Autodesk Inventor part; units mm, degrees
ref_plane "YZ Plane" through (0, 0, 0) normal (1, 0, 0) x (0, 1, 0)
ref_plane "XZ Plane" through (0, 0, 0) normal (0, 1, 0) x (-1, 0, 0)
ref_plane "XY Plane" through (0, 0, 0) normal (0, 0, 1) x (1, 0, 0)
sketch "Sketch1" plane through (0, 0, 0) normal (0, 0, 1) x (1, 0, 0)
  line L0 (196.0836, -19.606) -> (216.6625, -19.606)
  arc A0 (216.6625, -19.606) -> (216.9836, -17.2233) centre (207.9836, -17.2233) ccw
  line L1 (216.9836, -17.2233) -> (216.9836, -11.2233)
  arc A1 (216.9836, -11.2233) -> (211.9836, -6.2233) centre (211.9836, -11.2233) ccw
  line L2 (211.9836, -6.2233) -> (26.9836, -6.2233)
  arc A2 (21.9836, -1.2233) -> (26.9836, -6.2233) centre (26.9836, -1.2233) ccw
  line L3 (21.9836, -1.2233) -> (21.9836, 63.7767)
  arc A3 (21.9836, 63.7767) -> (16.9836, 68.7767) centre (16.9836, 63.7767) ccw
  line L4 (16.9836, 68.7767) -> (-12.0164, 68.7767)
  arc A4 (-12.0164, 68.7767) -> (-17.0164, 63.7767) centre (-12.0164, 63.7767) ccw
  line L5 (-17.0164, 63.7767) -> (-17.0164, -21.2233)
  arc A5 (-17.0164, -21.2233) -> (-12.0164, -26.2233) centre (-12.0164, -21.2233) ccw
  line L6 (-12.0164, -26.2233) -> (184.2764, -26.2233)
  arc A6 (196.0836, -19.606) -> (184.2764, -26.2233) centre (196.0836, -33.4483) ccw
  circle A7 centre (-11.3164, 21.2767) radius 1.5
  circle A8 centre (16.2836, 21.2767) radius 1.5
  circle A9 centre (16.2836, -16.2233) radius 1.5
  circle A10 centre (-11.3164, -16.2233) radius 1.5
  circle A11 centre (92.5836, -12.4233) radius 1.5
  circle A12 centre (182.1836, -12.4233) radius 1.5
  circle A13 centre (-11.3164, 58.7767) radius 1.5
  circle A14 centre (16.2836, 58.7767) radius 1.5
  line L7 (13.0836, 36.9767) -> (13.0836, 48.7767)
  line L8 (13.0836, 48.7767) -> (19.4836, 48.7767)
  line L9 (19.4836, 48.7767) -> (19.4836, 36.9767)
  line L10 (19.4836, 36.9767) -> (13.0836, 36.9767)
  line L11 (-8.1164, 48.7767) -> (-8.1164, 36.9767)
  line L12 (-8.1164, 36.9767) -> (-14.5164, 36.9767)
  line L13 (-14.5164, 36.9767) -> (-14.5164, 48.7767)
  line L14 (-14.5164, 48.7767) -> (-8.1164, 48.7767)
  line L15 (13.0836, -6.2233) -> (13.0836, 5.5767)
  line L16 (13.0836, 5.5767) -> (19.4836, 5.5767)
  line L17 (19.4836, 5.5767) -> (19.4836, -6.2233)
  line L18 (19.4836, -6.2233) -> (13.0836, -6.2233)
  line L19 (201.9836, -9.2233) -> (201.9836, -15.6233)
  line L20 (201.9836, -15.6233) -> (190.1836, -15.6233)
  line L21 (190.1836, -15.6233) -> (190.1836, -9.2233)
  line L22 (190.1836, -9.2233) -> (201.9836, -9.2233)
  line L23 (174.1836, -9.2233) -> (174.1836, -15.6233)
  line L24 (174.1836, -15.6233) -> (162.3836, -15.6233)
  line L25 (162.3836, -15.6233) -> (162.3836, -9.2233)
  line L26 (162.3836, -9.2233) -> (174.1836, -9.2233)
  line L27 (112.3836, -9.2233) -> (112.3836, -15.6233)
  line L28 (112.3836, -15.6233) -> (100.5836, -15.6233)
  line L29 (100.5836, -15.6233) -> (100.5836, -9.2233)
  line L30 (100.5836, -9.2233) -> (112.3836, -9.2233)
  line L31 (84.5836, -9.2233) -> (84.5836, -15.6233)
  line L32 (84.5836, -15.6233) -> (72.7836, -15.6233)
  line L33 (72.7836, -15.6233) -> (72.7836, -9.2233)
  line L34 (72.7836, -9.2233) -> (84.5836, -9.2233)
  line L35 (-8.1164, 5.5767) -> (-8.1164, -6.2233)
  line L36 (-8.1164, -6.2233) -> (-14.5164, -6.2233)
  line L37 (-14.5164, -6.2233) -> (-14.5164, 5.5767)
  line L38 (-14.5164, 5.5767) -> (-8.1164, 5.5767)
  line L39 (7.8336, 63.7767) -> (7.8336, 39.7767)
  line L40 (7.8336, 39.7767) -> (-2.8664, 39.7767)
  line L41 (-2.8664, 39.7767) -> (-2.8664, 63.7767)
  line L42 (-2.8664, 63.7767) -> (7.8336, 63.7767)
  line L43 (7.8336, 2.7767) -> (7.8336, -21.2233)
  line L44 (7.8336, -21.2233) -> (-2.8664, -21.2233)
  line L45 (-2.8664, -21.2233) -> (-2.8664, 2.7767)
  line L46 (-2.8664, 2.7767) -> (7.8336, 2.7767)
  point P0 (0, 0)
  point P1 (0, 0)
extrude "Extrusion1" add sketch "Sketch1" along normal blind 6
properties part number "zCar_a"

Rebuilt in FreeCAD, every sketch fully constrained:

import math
import FreeCAD as App
import Part
import Sketcher

V = App.Vector
Q = App.Units.Quantity

doc = App.newDocument("Part")
params = doc.addObject("Spreadsheet::Sheet", "Params")
for row, (alias, value) in enumerate([
    ("sketch1_diameter", "3 mm"),
    ("sketch1_radius", "5 mm"),
    ("sketch1_width", "185 mm"),
    ("sketch1_width2", "29 mm"),
    ("sketch1_height", "6 mm"),
    ("pad1_length", "6 mm"),
], start=1):
    params.set(f"A{row}", alias)
    params.set(f"B{row}", "=" + value)
    params.setAlias(f"B{row}", alias)

body = doc.addObject("PartDesign::Body", "Body")

# Sketch on XY plane
sketch1 = doc.addObject("Sketcher::SketchObject", "Sketch")
body.addObject(sketch1)
sketch1.AttachmentSupport = (doc.XY_Plane, [""])
sketch1.MapMode = "FlatFace"
sketch1.addGeometry(Part.ArcOfCircle(Part.Circle(V(196.0836, -33.4483, 0), V(0, 0, 1), 13.8423), math.radians(90), math.radians(148.536921)), False)
sketch1.addGeometry(Part.LineSegment(V(196.0836, -19.606, 0), V(216.6625, -19.606, 0)), False)
sketch1.addGeometry(Part.ArcOfCircle(Part.Circle(V(207.985318, -17.22365, 0), V(0, 0, 1), 8.998282), math.radians(-15.352461), math.radians(0.002229)), False)
sketch1.addGeometry(Part.LineSegment(V(216.9836, -17.2233, 0), V(216.9836, -11.2233, 0)), False)
sketch1.addGeometry(Part.ArcOfCircle(Part.Circle(V(211.9836, -11.2233, 0), V(0, 0, 1), 5), math.radians(0), math.radians(90)), False)
sketch1.addGeometry(Part.LineSegment(V(211.9836, -6.2233, 0), V(26.9836, -6.2233, 0)), False)
sketch1.addGeometry(Part.ArcOfCircle(Part.Circle(V(26.9836, -1.2233, 0), V(0, 0, 1), 5), math.radians(180), math.radians(270)), False)
sketch1.addGeometry(Part.LineSegment(V(21.9836, -1.2233, 0), V(21.9836, 63.7767, 0)), False)
sketch1.addGeometry(Part.ArcOfCircle(Part.Circle(V(16.9836, 63.7767, 0), V(0, 0, 1), 5), math.radians(0), math.radians(90)), False)
sketch1.addGeometry(Part.LineSegment(V(16.9836, 68.7767, 0), V(-12.0164, 68.7767, 0)), False)
sketch1.addGeometry(Part.ArcOfCircle(Part.Circle(V(-12.0164, 63.7767, 0), V(0, 0, 1), 5), math.radians(90), math.radians(180)), False)
sketch1.addGeometry(Part.LineSegment(V(-17.0164, 63.7767, 0), V(-17.0164, -21.2233, 0)), False)
sketch1.addGeometry(Part.ArcOfCircle(Part.Circle(V(-12.0164, -21.2233, 0), V(0, 0, 1), 5), math.radians(180), math.radians(270)), False)
sketch1.addGeometry(Part.LineSegment(V(-12.0164, -26.2233, 0), V(184.2764, -26.2233, 0)), False)
sketch1.addGeometry(Part.Circle(V(-11.3164, -16.2233, 0), V(0, 0, 1), 1.5), False)
sketch1.addGeometry(Part.Circle(V(16.2836, -16.2233, 0), V(0, 0, 1), 1.5), False)
sketch1.addGeometry(Part.LineSegment(V(-2.8664, 2.7767, 0), V(7.8336, 2.7767, 0)), False)
sketch1.addGeometry(Part.LineSegment(V(7.8336, 2.7767, 0), V(7.8336, -21.2233, 0)), False)
sketch1.addGeometry(Part.LineSegment(V(7.8336, -21.2233, 0), V(-2.8664, -21.2233, 0)), False)
sketch1.addGeometry(Part.LineSegment(V(-2.8664, -21.2233, 0), V(-2.8664, 2.7767, 0)), False)
sketch1.addGeometry(Part.LineSegment(V(72.7836, -9.2233, 0), V(84.5836, -9.2233, 0)), False)
sketch1.addGeometry(Part.LineSegment(V(84.5836, -9.2233, 0), V(84.5836, -15.6233, 0)), False)
sketch1.addGeometry(Part.LineSegment(V(84.5836, -15.6233, 0), V(72.7836, -15.6233, 0)), False)
sketch1.addGeometry(Part.LineSegment(V(72.7836, -15.6233, 0), V(72.7836, -9.2233, 0)), False)
sketch1.addGeometry(Part.Circle(V(92.5836, -12.4233, 0), V(0, 0, 1), 1.5), False)
sketch1.addGeometry(Part.LineSegment(V(-14.5164, 5.5767, 0), V(-8.1164, 5.5767, 0)), False)
sketch1.addGeometry(Part.LineSegment(V(-8.1164, 5.5767, 0), V(-8.1164, -6.2233, 0)), False)
sketch1.addGeometry(Part.LineSegment(V(-8.1164, -6.2233, 0), V(-14.5164, -6.2233, 0)), False)
sketch1.addGeometry(Part.LineSegment(V(-14.5164, -6.2233, 0), V(-14.5164, 5.5767, 0)), False)
sketch1.addGeometry(Part.LineSegment(V(19.4836, -6.2233, 0), V(13.0836, -6.2233, 0)), False)
sketch1.addGeometry(Part.LineSegment(V(13.0836, -6.2233, 0), V(13.0836, 5.5767, 0)), False)
sketch1.addGeometry(Part.LineSegment(V(13.0836, 5.5767, 0), V(19.4836, 5.5767, 0)), False)
sketch1.addGeometry(Part.LineSegment(V(19.4836, 5.5767, 0), V(19.4836, -6.2233, 0)), False)
sketch1.addGeometry(Part.LineSegment(V(100.5836, -9.2233, 0), V(112.3836, -9.2233, 0)), False)
sketch1.addGeometry(Part.LineSegment(V(112.3836, -9.2233, 0), V(112.3836, -15.6233, 0)), False)
sketch1.addGeometry(Part.LineSegment(V(112.3836, -15.6233, 0), V(100.5836, -15.6233, 0)), False)
sketch1.addGeometry(Part.LineSegment(V(100.5836, -15.6233, 0), V(100.5836, -9.2233, 0)), False)
sketch1.addGeometry(Part.LineSegment(V(162.3836, -9.2233, 0), V(174.1836, -9.2233, 0)), False)
sketch1.addGeometry(Part.LineSegment(V(174.1836, -9.2233, 0), V(174.1836, -15.6233, 0)), False)
sketch1.addGeometry(Part.LineSegment(V(174.1836, -15.6233, 0), V(162.3836, -15.6233, 0)), False)
sketch1.addGeometry(Part.LineSegment(V(162.3836, -15.6233, 0), V(162.3836, -9.2233, 0)), False)
sketch1.addGeometry(Part.Circle(V(182.1836, -12.4233, 0), V(0, 0, 1), 1.5), False)
sketch1.addGeometry(Part.LineSegment(V(190.1836, -9.2233, 0), V(201.9836, -9.2233, 0)), False)
sketch1.addGeometry(Part.LineSegment(V(201.9836, -9.2233, 0), V(201.9836, -15.6233, 0)), False)
sketch1.addGeometry(Part.LineSegment(V(201.9836, -15.6233, 0), V(190.1836, -15.6233, 0)), False)
sketch1.addGeometry(Part.LineSegment(V(190.1836, -15.6233, 0), V(190.1836, -9.2233, 0)), False)
sketch1.addGeometry(Part.Circle(V(-11.3164, 21.2767, 0), V(0, 0, 1), 1.5), False)
sketch1.addGeometry(Part.Circle(V(16.2836, 21.2767, 0), V(0, 0, 1), 1.5), False)
sketch1.addGeometry(Part.LineSegment(V(-14.5164, 48.7767, 0), V(-8.1164, 48.7767, 0)), False)
sketch1.addGeometry(Part.LineSegment(V(-8.1164, 48.7767, 0), V(-8.1164, 36.9767, 0)), False)
sketch1.addGeometry(Part.LineSegment(V(-8.1164, 36.9767, 0), V(-14.5164, 36.9767, 0)), False)
sketch1.addGeometry(Part.LineSegment(V(-14.5164, 36.9767, 0), V(-14.5164, 48.7767, 0)), False)
sketch1.addGeometry(Part.LineSegment(V(19.4836, 36.9767, 0), V(13.0836, 36.9767, 0)), False)
sketch1.addGeometry(Part.LineSegment(V(13.0836, 36.9767, 0), V(13.0836, 48.7767, 0)), False)
sketch1.addGeometry(Part.LineSegment(V(13.0836, 48.7767, 0), V(19.4836, 48.7767, 0)), False)
sketch1.addGeometry(Part.LineSegment(V(19.4836, 48.7767, 0), V(19.4836, 36.9767, 0)), False)
sketch1.addGeometry(Part.LineSegment(V(-2.8664, 63.7767, 0), V(7.8336, 63.7767, 0)), False)
sketch1.addGeometry(Part.LineSegment(V(7.8336, 63.7767, 0), V(7.8336, 39.7767, 0)), False)
sketch1.addGeometry(Part.LineSegment(V(7.8336, 39.7767, 0), V(-2.8664, 39.7767, 0)), False)
sketch1.addGeometry(Part.LineSegment(V(-2.8664, 39.7767, 0), V(-2.8664, 63.7767, 0)), False)
sketch1.addGeometry(Part.Circle(V(-11.3164, 58.7767, 0), V(0, 0, 1), 1.5), False)
sketch1.addGeometry(Part.Circle(V(16.2836, 58.7767, 0), V(0, 0, 1), 1.5), False)
sketch1.addConstraint(Sketcher.Constraint("Tangent", 0, 1, 1, 1))
sketch1.addConstraint(Sketcher.Constraint("Coincident", 1, 2, 2, 1))
sketch1.addConstraint(Sketcher.Constraint("Tangent", 2, 2, 3, 1))
sketch1.addConstraint(Sketcher.Constraint("Tangent", 3, 2, 4, 1))
sketch1.addConstraint(Sketcher.Constraint("Tangent", 4, 2, 5, 1))
sketch1.addConstraint(Sketcher.Constraint("Tangent", 5, 2, 6, 2))
sketch1.addConstraint(Sketcher.Constraint("Tangent", 6, 1, 7, 1))
sketch1.addConstraint(Sketcher.Constraint("Tangent", 7, 2, 8, 1))
sketch1.addConstraint(Sketcher.Constraint("Tangent", 8, 2, 9, 1))
sketch1.addConstraint(Sketcher.Constraint("Tangent", 9, 2, 10, 1))
sketch1.addConstraint(Sketcher.Constraint("Tangent", 10, 2, 11, 1))
sketch1.addConstraint(Sketcher.Constraint("Tangent", 11, 2, 12, 1))
sketch1.addConstraint(Sketcher.Constraint("Tangent", 12, 2, 13, 1))
sketch1.addConstraint(Sketcher.Constraint("Coincident", 13, 2, 0, 2))
sketch1.addConstraint(Sketcher.Constraint("Coincident", 16, 2, 17, 1))
sketch1.addConstraint(Sketcher.Constraint("Coincident", 17, 2, 18, 1))
sketch1.addConstraint(Sketcher.Constraint("Coincident", 18, 2, 19, 1))
sketch1.addConstraint(Sketcher.Constraint("Coincident", 19, 2, 16, 1))
sketch1.addConstraint(Sketcher.Constraint("Coincident", 20, 2, 21, 1))
sketch1.addConstraint(Sketcher.Constraint("Coincident", 21, 2, 22, 1))
sketch1.addConstraint(Sketcher.Constraint("Coincident", 22, 2, 23, 1))
sketch1.addConstraint(Sketcher.Constraint("Coincident", 23, 2, 20, 1))
sketch1.addConstraint(Sketcher.Constraint("Coincident", 25, 2, 26, 1))
sketch1.addConstraint(Sketcher.Constraint("Coincident", 26, 2, 27, 1))
sketch1.addConstraint(Sketcher.Constraint("Coincident", 27, 2, 28, 1))
sketch1.addConstraint(Sketcher.Constraint("Coincident", 28, 2, 25, 1))
sketch1.addConstraint(Sketcher.Constraint("Coincident", 29, 2, 30, 1))
sketch1.addConstraint(Sketcher.Constraint("Coincident", 30, 2, 31, 1))
sketch1.addConstraint(Sketcher.Constraint("Coincident", 31, 2, 32, 1))
sketch1.addConstraint(Sketcher.Constraint("Coincident", 32, 2, 29, 1))
sketch1.addConstraint(Sketcher.Constraint("Coincident", 33, 2, 34, 1))
sketch1.addConstraint(Sketcher.Constraint("Coincident", 34, 2, 35, 1))
sketch1.addConstraint(Sketcher.Constraint("Coincident", 35, 2, 36, 1))
sketch1.addConstraint(Sketcher.Constraint("Coincident", 36, 2, 33, 1))
sketch1.addConstraint(Sketcher.Constraint("Coincident", 37, 2, 38, 1))
sketch1.addConstraint(Sketcher.Constraint("Coincident", 38, 2, 39, 1))
sketch1.addConstraint(Sketcher.Constraint("Coincident", 39, 2, 40, 1))
sketch1.addConstraint(Sketcher.Constraint("Coincident", 40, 2, 37, 1))
sketch1.addConstraint(Sketcher.Constraint("Coincident", 42, 2, 43, 1))
sketch1.addConstraint(Sketcher.Constraint("Coincident", 43, 2, 44, 1))
sketch1.addConstraint(Sketcher.Constraint("Coincident", 44, 2, 45, 1))
sketch1.addConstraint(Sketcher.Constraint("Coincident", 45, 2, 42, 1))
sketch1.addConstraint(Sketcher.Constraint("Coincident", 48, 2, 49, 1))
sketch1.addConstraint(Sketcher.Constraint("Coincident", 49, 2, 50, 1))
sketch1.addConstraint(Sketcher.Constraint("Coincident", 50, 2, 51, 1))
sketch1.addConstraint(Sketcher.Constraint("Coincident", 51, 2, 48, 1))
sketch1.addConstraint(Sketcher.Constraint("Coincident", 52, 2, 53, 1))
sketch1.addConstraint(Sketcher.Constraint("Coincident", 53, 2, 54, 1))
sketch1.addConstraint(Sketcher.Constraint("Coincident", 54, 2, 55, 1))
sketch1.addConstraint(Sketcher.Constraint("Coincident", 55, 2, 52, 1))
sketch1.addConstraint(Sketcher.Constraint("Coincident", 56, 2, 57, 1))
sketch1.addConstraint(Sketcher.Constraint("Coincident", 57, 2, 58, 1))
sketch1.addConstraint(Sketcher.Constraint("Coincident", 58, 2, 59, 1))
sketch1.addConstraint(Sketcher.Constraint("Coincident", 59, 2, 56, 1))
sketch1.addConstraint(Sketcher.Constraint("Horizontal", 1))
sketch1.addConstraint(Sketcher.Constraint("Vertical", 3))
sketch1.addConstraint(Sketcher.Constraint("Horizontal", 5))
sketch1.addConstraint(Sketcher.Constraint("Vertical", 7))
sketch1.addConstraint(Sketcher.Constraint("Horizontal", 9))
sketch1.addConstraint(Sketcher.Constraint("Vertical", 11))
sketch1.addConstraint(Sketcher.Constraint("Horizontal", 13))
sketch1.addConstraint(Sketcher.Constraint("Horizontal", 16))
sketch1.addConstraint(Sketcher.Constraint("Vertical", 17))
sketch1.addConstraint(Sketcher.Constraint("Horizontal", 18))
sketch1.addConstraint(Sketcher.Constraint("Vertical", 19))
sketch1.addConstraint(Sketcher.Constraint("Horizontal", 20))
sketch1.addConstraint(Sketcher.Constraint("Vertical", 21))
sketch1.addConstraint(Sketcher.Constraint("Horizontal", 22))
sketch1.addConstraint(Sketcher.Constraint("Vertical", 23))
sketch1.addConstraint(Sketcher.Constraint("Horizontal", 25))
sketch1.addConstraint(Sketcher.Constraint("Vertical", 26))
sketch1.addConstraint(Sketcher.Constraint("Horizontal", 27))
sketch1.addConstraint(Sketcher.Constraint("Vertical", 28))
sketch1.addConstraint(Sketcher.Constraint("Horizontal", 29))
sketch1.addConstraint(Sketcher.Constraint("Vertical", 30))
sketch1.addConstraint(Sketcher.Constraint("Horizontal", 31))
sketch1.addConstraint(Sketcher.Constraint("Vertical", 32))
sketch1.addConstraint(Sketcher.Constraint("Horizontal", 33))
sketch1.addConstraint(Sketcher.Constraint("Vertical", 34))
sketch1.addConstraint(Sketcher.Constraint("Horizontal", 35))
sketch1.addConstraint(Sketcher.Constraint("Vertical", 36))
sketch1.addConstraint(Sketcher.Constraint("Horizontal", 37))
sketch1.addConstraint(Sketcher.Constraint("Vertical", 38))
sketch1.addConstraint(Sketcher.Constraint("Horizontal", 39))
sketch1.addConstraint(Sketcher.Constraint("Vertical", 40))
sketch1.addConstraint(Sketcher.Constraint("Horizontal", 42))
sketch1.addConstraint(Sketcher.Constraint("Vertical", 43))
sketch1.addConstraint(Sketcher.Constraint("Horizontal", 44))
sketch1.addConstraint(Sketcher.Constraint("Vertical", 45))
sketch1.addConstraint(Sketcher.Constraint("Horizontal", 48))
sketch1.addConstraint(Sketcher.Constraint("Vertical", 49))
sketch1.addConstraint(Sketcher.Constraint("Horizontal", 50))
sketch1.addConstraint(Sketcher.Constraint("Vertical", 51))
sketch1.addConstraint(Sketcher.Constraint("Horizontal", 52))
sketch1.addConstraint(Sketcher.Constraint("Vertical", 53))
sketch1.addConstraint(Sketcher.Constraint("Horizontal", 54))
sketch1.addConstraint(Sketcher.Constraint("Vertical", 55))
sketch1.addConstraint(Sketcher.Constraint("Horizontal", 56))
sketch1.addConstraint(Sketcher.Constraint("Vertical", 57))
sketch1.addConstraint(Sketcher.Constraint("Horizontal", 58))
sketch1.addConstraint(Sketcher.Constraint("Vertical", 59))
sketch1.addConstraint(Sketcher.Constraint("Equal", 4, 6))
sketch1.addConstraint(Sketcher.Constraint("Equal", 6, 8))
sketch1.addConstraint(Sketcher.Constraint("Equal", 8, 10))
sketch1.addConstraint(Sketcher.Constraint("Equal", 10, 12))
sketch1.addConstraint(Sketcher.Constraint("Equal", 14, 15))
sketch1.addConstraint(Sketcher.Constraint("Equal", 15, 24))
sketch1.addConstraint(Sketcher.Constraint("Equal", 24, 41))
sketch1.addConstraint(Sketcher.Constraint("Equal", 41, 46))
sketch1.addConstraint(Sketcher.Constraint("Equal", 46, 47))
sketch1.addConstraint(Sketcher.Constraint("Equal", 47, 60))
sketch1.addConstraint(Sketcher.Constraint("Equal", 60, 61))
sketch1.addConstraint(Sketcher.Constraint("Horizontal", 14, 3, 15, 3))
sketch1.addConstraint(Sketcher.Constraint("Horizontal", 24, 3, 41, 3))
sketch1.addConstraint(Sketcher.Constraint("Horizontal", 46, 3, 47, 3))
sketch1.addConstraint(Sketcher.Constraint("Horizontal", 60, 3, 61, 3))
sketch1.addConstraint(Sketcher.Constraint("Horizontal", 11, 2, 17, 2))
sketch1.addConstraint(Sketcher.Constraint("Horizontal", 5, 2, 26, 2))
sketch1.addConstraint(Sketcher.Constraint("Horizontal", 27, 2, 29, 2))
sketch1.addConstraint(Sketcher.Constraint("Horizontal", 28, 2, 30, 2))
sketch1.addConstraint(Sketcher.Constraint("Horizontal", 23, 2, 33, 2))
sketch1.addConstraint(Sketcher.Constraint("Horizontal", 22, 2, 34, 2))
sketch1.addConstraint(Sketcher.Constraint("Horizontal", 36, 2, 37, 2))
sketch1.addConstraint(Sketcher.Constraint("Horizontal", 35, 2, 38, 2))
sketch1.addConstraint(Sketcher.Constraint("Horizontal", 40, 2, 42, 2))
sketch1.addConstraint(Sketcher.Constraint("Horizontal", 39, 2, 43, 2))
sketch1.addConstraint(Sketcher.Constraint("Horizontal", 50, 2, 52, 2))
sketch1.addConstraint(Sketcher.Constraint("Horizontal", 51, 2, 53, 2))
sketch1.addConstraint(Sketcher.Constraint("Horizontal", 10, 2, 56, 2))
sketch1.addConstraint(Sketcher.Constraint("Vertical", 14, 3, 46, 3))
sketch1.addConstraint(Sketcher.Constraint("Vertical", 15, 3, 47, 3))
sketch1.addConstraint(Sketcher.Constraint("Vertical", 46, 3, 60, 3))
sketch1.addConstraint(Sketcher.Constraint("Vertical", 47, 3, 61, 3))
sketch1.addConstraint(Sketcher.Constraint("Vertical", 26, 2, 48, 2))
sketch1.addConstraint(Sketcher.Constraint("Vertical", 28, 2, 50, 2))
sketch1.addConstraint(Sketcher.Constraint("Vertical", 30, 2, 52, 2))
sketch1.addConstraint(Sketcher.Constraint("Vertical", 32, 2, 54, 2))
sketch1.addConstraint(Sketcher.Constraint("Vertical", 17, 2, 56, 2))
sketch1.addConstraint(Sketcher.Constraint("Vertical", 19, 2, 58, 2))
sketch1.addConstraint(Sketcher.Constraint("Equal", 27, 29))
sketch1.addConstraint(Sketcher.Constraint("Equal", 22, 33))
sketch1.addConstraint(Sketcher.Constraint("Equal", 35, 37))
sketch1.addConstraint(Sketcher.Constraint("Equal", 39, 42))
sketch1.addConstraint(Sketcher.Constraint("Equal", 54, 21))
sketch1.addConstraint(Sketcher.Constraint("Equal", 44, 26))
sketch1.addConstraint(Sketcher.Constraint("Equal", 32, 49))
sketch1.addConstraint(Sketcher.Constraint("Equal", 19, 57))
sketch1.addConstraint(Sketcher.Constraint("Diameter", 14, Q("3 mm")))
sketch1.addConstraint(Sketcher.Constraint("Radius", 4, Q("5 mm")))
sketch1.addConstraint(Sketcher.Constraint("DistanceX", 5, 2, 5, 1, Q("185 mm")))
sketch1.addConstraint(Sketcher.Constraint("DistanceX", 9, 2, 9, 1, Q("29 mm")))
sketch1.addConstraint(Sketcher.Constraint("DistanceY", 3, 1, 3, 2, Q("6 mm")))
sketch1.addConstraint(Sketcher.Constraint("DistanceY", 7, 1, 7, 2, Q("65 mm")))
sketch1.addConstraint(Sketcher.Constraint("DistanceY", 11, 2, 11, 1, Q("85 mm")))
sketch1.addConstraint(Sketcher.Constraint("DistanceY", 17, 2, 17, 1, Q("24 mm")))
sketch1.addConstraint(Sketcher.Constraint("DistanceX", 16, 1, 16, 2, Q("10.7 mm")))
sketch1.addConstraint(Sketcher.Constraint("DistanceX", 20, 1, 20, 2, Q("11.8 mm")))
sketch1.addConstraint(Sketcher.Constraint("DistanceX", 25, 1, 25, 2, Q("6.4 mm")))
sketch1.addConstraint(Sketcher.Constraint("Radius", 0, Q("13.8423 mm")))
sketch1.addConstraint(Sketcher.Constraint("Radius", 2, Q("8.9983 mm")))
sketch1.addConstraint(Sketcher.Constraint("DistanceX", 1, 1, 1, 2, Q("20.579 mm")))
sketch1.addConstraint(Sketcher.Constraint("DistanceX", 13, 1, 13, 2, Q("196.2928 mm")))
sketch1.addConstraint(Sketcher.Constraint("DistanceY", 0, 1, -1, 1, Q("19.606 mm")))
sketch1.addConstraint(Sketcher.Constraint("DistanceX", -1, 1, 0, 3, Q("196.0836 mm")))
sketch1.addConstraint(Sketcher.Constraint("DistanceX", 14, 3, -1, 1, Q("11.3164 mm")))
sketch1.addConstraint(Sketcher.Constraint("DistanceY", 14, 3, -1, 1, Q("16.2233 mm")))
sketch1.addConstraint(Sketcher.Constraint("DistanceX", -1, 1, 15, 3, Q("16.2836 mm")))
sketch1.addConstraint(Sketcher.Constraint("DistanceX", -1, 1, 24, 3, Q("92.5836 mm")))
sketch1.addConstraint(Sketcher.Constraint("DistanceY", 24, 3, -1, 1, Q("12.4233 mm")))
sketch1.addConstraint(Sketcher.Constraint("DistanceX", -1, 1, 41, 3, Q("182.1836 mm")))
sketch1.addConstraint(Sketcher.Constraint("DistanceY", -1, 1, 46, 3, Q("21.2767 mm")))
sketch1.addConstraint(Sketcher.Constraint("DistanceY", -1, 1, 60, 3, Q("58.7767 mm")))
sketch1.addConstraint(Sketcher.Constraint("DistanceX", -1, 1, 16, 2, Q("7.8336 mm")))
sketch1.addConstraint(Sketcher.Constraint("DistanceX", -1, 1, 20, 2, Q("84.5836 mm")))
sketch1.addConstraint(Sketcher.Constraint("DistanceY", 20, 2, -1, 1, Q("9.2233 mm")))
sketch1.addConstraint(Sketcher.Constraint("DistanceX", 25, 2, -1, 1, Q("8.1164 mm")))
sketch1.addConstraint(Sketcher.Constraint("DistanceX", -1, 1, 29, 2, Q("13.0836 mm")))
sketch1.addConstraint(Sketcher.Constraint("DistanceX", -1, 1, 33, 2, Q("112.3836 mm")))
sketch1.addConstraint(Sketcher.Constraint("DistanceX", -1, 1, 37, 2, Q("174.1836 mm")))
sketch1.addConstraint(Sketcher.Constraint("DistanceX", -1, 1, 42, 2, Q("201.9836 mm")))
sketch1.addConstraint(Sketcher.Constraint("DistanceY", -1, 1, 48, 2, Q("48.7767 mm")))
sketch1.setExpression("Constraints[147]", "Params.sketch1_diameter")
sketch1.setExpression("Constraints[148]", "Params.sketch1_radius")
sketch1.setExpression("Constraints[149]", "Params.sketch1_width")
sketch1.setExpression("Constraints[150]", "Params.sketch1_width2")
sketch1.setExpression("Constraints[151]", "Params.sketch1_height")
pad1 = doc.addObject("PartDesign::Pad", "Pad")
body.addObject(pad1)
pad1.Profile = sketch1
pad1.setExpression("Length", "Params.pad1_length")

doc.recompute()
